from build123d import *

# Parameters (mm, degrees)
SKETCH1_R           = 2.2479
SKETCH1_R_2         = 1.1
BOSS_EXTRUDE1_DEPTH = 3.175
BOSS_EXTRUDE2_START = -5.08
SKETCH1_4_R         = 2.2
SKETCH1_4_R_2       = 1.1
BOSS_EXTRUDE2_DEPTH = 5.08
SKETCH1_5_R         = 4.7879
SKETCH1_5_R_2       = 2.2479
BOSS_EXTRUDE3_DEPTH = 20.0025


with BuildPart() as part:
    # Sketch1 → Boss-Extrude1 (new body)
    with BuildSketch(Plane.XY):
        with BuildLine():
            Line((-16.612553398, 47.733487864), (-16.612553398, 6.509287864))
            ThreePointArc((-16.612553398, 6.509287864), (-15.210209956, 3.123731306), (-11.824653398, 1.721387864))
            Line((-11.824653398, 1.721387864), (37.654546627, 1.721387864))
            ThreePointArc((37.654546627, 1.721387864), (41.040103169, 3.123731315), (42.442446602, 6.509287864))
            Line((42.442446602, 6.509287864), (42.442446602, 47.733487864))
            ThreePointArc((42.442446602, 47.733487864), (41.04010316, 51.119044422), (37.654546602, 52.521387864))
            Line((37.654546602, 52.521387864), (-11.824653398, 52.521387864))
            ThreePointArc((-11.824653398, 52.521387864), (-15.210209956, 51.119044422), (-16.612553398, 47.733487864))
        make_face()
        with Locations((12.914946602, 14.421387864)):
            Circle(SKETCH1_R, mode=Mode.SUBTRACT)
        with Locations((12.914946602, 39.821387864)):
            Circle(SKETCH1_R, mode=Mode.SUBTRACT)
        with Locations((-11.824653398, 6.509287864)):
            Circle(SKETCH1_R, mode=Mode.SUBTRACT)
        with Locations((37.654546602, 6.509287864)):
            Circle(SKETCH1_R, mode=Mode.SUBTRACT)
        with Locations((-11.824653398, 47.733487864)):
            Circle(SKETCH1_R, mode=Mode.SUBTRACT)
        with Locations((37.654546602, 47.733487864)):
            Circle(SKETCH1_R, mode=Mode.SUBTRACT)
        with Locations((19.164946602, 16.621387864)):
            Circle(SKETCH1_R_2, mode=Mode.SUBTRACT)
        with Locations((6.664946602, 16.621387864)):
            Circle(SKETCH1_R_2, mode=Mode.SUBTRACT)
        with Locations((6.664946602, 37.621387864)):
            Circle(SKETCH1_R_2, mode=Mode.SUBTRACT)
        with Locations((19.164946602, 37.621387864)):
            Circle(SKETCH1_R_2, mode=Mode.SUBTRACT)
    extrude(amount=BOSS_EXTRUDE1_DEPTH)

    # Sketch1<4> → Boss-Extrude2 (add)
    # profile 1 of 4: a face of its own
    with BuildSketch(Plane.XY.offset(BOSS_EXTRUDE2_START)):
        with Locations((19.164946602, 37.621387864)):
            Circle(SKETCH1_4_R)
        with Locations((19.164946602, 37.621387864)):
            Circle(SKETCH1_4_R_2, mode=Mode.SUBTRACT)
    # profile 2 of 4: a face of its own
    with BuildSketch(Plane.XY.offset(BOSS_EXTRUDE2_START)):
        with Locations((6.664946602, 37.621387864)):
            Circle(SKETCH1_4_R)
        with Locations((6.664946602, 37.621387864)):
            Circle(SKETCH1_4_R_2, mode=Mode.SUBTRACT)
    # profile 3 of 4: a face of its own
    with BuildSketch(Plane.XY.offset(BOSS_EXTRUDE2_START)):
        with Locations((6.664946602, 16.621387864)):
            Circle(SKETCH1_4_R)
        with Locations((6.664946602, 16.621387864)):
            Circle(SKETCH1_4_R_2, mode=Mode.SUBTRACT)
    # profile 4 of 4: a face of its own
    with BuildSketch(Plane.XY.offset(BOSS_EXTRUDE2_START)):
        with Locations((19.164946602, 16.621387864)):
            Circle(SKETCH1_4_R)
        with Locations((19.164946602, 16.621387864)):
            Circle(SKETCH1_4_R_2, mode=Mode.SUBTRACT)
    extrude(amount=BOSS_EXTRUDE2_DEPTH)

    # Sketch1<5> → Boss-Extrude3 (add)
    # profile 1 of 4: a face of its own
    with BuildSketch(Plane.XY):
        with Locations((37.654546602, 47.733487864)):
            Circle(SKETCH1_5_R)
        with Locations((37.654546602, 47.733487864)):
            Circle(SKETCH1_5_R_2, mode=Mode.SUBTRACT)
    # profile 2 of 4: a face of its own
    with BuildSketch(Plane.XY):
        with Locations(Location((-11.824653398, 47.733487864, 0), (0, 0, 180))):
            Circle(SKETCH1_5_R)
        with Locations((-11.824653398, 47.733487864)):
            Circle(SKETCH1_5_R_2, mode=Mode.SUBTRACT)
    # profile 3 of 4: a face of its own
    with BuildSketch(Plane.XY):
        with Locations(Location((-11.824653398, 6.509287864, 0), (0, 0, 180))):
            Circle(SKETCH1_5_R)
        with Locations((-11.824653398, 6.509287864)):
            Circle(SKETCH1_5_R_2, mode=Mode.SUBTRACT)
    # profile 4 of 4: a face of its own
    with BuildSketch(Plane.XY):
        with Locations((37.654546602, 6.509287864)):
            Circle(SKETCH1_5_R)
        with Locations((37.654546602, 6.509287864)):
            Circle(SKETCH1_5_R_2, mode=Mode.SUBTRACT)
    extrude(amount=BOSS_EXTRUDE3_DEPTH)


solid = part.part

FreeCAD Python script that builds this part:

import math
import FreeCAD as App
import Part
import Sketcher

V = App.Vector
Q = App.Units.Quantity

doc = App.newDocument("Part")
body = doc.addObject("PartDesign::Body", "Body")

# Sketch on XY plane
sketch1 = body.newObject("Sketcher::SketchObject", "Sketch")
sketch1.AttachmentSupport = (doc.getObject("XY_Plane"), [""])
sketch1.MapMode = "FlatFace"
sketch1.addGeometry(Part.LineSegment(V(-16.6, 47.7, 0), V(-16.6, 6.5, 0)), False)
sketch1.addGeometry(Part.ArcOfCircle(Part.Circle(V(-11.8, 6.5, 0), V(0, 0, 1), 4.8), math.radians(180), math.radians(270)), False)
sketch1.addGeometry(Part.LineSegment(V(-11.8, 1.7, 0), V(37.7, 1.7, 0)), False)
sketch1.addGeometry(Part.ArcOfCircle(Part.Circle(V(37.7, 6.5, 0), V(0, 0, 1), 4.8), math.radians(-90), math.radians(0)), False)
sketch1.addGeometry(Part.LineSegment(V(42.4, 6.5, 0), V(42.4, 47.7, 0)), False)
sketch1.addGeometry(Part.ArcOfCircle(Part.Circle(V(37.7, 47.7, 0), V(0, 0, 1), 4.8), math.radians(0), math.radians(90)), False)
sketch1.addGeometry(Part.LineSegment(V(37.7, 52.5, 0), V(-11.8, 52.5, 0)), False)
sketch1.addGeometry(Part.ArcOfCircle(Part.Circle(V(-11.8, 47.7, 0), V(0, 0, 1), 4.8), math.radians(90), math.radians(180)), False)
sketch1.addGeometry(Part.Circle(V(-11.8, 6.5, 0), V(0, 0, 1), 2.2), False)
sketch1.addGeometry(Part.Circle(V(6.7, 16.6, 0), V(0, 0, 1), 1.1), False)
sketch1.addGeometry(Part.Circle(V(12.9, 14.4, 0), V(0, 0, 1), 2.2), False)
sketch1.addGeometry(Part.Circle(V(37.7, 6.5, 0), V(0, 0, 1), 2.2), False)
sketch1.addGeometry(Part.Circle(V(19.2, 16.6, 0), V(0, 0, 1), 1.1), False)
sketch1.addGeometry(Part.Circle(V(6.7, 37.6, 0), V(0, 0, 1), 1.1), False)
sketch1.addGeometry(Part.Circle(V(-11.8, 47.7, 0), V(0, 0, 1), 2.2), False)
sketch1.addGeometry(Part.Circle(V(19.2, 37.6, 0), V(0, 0, 1), 1.1), False)
sketch1.addGeometry(Part.Circle(V(12.9, 39.8, 0), V(0, 0, 1), 2.2), False)
sketch1.addGeometry(Part.Circle(V(37.7, 47.7, 0), V(0, 0, 1), 2.2), False)
sketch1.addConstraint(Sketcher.Constraint("Tangent", 0, 2, 1, 1))
sketch1.addConstraint(Sketcher.Constraint("Tangent", 1, 2, 2, 1))
sketch1.addConstraint(Sketcher.Constraint("Tangent", 2, 2, 3, 1))
sketch1.addConstraint(Sketcher.Constraint("Tangent", 3, 2, 4, 1))
sketch1.addConstraint(Sketcher.Constraint("Tangent", 4, 2, 5, 1))
sketch1.addConstraint(Sketcher.Constraint("Tangent", 5, 2, 6, 1))
sketch1.addConstraint(Sketcher.Constraint("Tangent", 6, 2, 7, 1))
sketch1.addConstraint(Sketcher.Constraint("Tangent", 7, 2, 0, 1))
sketch1.addConstraint(Sketcher.Constraint("Vertical", 0))
sketch1.addConstraint(Sketcher.Constraint("Horizontal", 2))
sketch1.addConstraint(Sketcher.Constraint("Vertical", 4))
sketch1.addConstraint(Sketcher.Constraint("Horizontal", 6))
sketch1.addConstraint(Sketcher.Constraint("Coincident", 8, 3, 1, 3))
sketch1.addConstraint(Sketcher.Constraint("Coincident", 11, 3, 3, 3))
sketch1.addConstraint(Sketcher.Constraint("Coincident", 14, 3, 7, 3))
sketch1.addConstraint(Sketcher.Constraint("Coincident", 17, 3, 5, 3))
sketch1.addConstraint(Sketcher.Constraint("Equal", 1, 3))
sketch1.addConstraint(Sketcher.Constraint("Equal", 3, 5))
sketch1.addConstraint(Sketcher.Constraint("Equal", 5, 7))
sketch1.addConstraint(Sketcher.Constraint("Equal", 8, 10))
sketch1.addConstraint(Sketcher.Constraint("Equal", 10, 11))
sketch1.addConstraint(Sketcher.Constraint("Equal", 9, 12))
sketch1.addConstraint(Sketcher.Constraint("Equal", 12, 13))
sketch1.addConstraint(Sketcher.Constraint("Equal", 11, 14))
sketch1.addConstraint(Sketcher.Constraint("Equal", 13, 15))
sketch1.addConstraint(Sketcher.Constraint("Equal", 14, 16))
sketch1.addConstraint(Sketcher.Constraint("Equal", 16, 17))
sketch1.addConstraint(Sketcher.Constraint("Horizontal", 9, 3, 12, 3))
sketch1.addConstraint(Sketcher.Constraint("Horizontal", 13, 3, 15, 3))
sketch1.addConstraint(Sketcher.Constraint("Vertical", 9, 3, 13, 3))
sketch1.addConstraint(Sketcher.Constraint("Vertical", 12, 3, 15, 3))
sketch1.addConstraint(Sketcher.Constraint("Vertical", 10, 3, 16, 3))
sketch1.addConstraint(Sketcher.Constraint("Diameter", 8, Q("0.177 in")))
sketch1.addConstraint(Sketcher.Constraint("DistanceY", 10, 3, 16, 3, Q("1 in")))
sketch1.addConstraint(Sketcher.Constraint("Radius", 1, Q("0.1885 in")))
sketch1.addConstraint(Sketcher.Constraint("DistanceY", 1, 2, 10, 3, Q("0.5 in")))
sketch1.addConstraint(Sketcher.Constraint("DistanceY", 16, 3, 5, 2, Q("0.5 in")))
sketch1.addConstraint(Sketcher.Constraint("Diameter", 9, Q("2.2 mm")))
sketch1.addConstraint(Sketcher.Constraint("DistanceX", 2, 1, 2, 2, Q("1.948 in")))
sketch1.addConstraint(Sketcher.Constraint("DistanceX", 8, 3, 10, 3, Q("0.974 in")))
sketch1.addConstraint(Sketcher.Constraint("DistanceX", 8, 3, 9, 3, Q("18.4896 mm")))
sketch1.addConstraint(Sketcher.Constraint("DistanceY", 8, 3, 9, 3, Q("10.1121 mm")))
sketch1.addConstraint(Sketcher.Constraint("DistanceX", 10, 3, 12, 3, Q("6.25 mm")))
sketch1.addConstraint(Sketcher.Constraint("DistanceY", 9, 3, 13, 3, Q("21 mm")))
sketch1.addConstraint(Sketcher.Constraint("DistanceX", 1, 3, -1, 1, Q("11.824653 mm")))
sketch1.addConstraint(Sketcher.Constraint("DistanceY", -1, 1, 1, 3, Q("6.509288 mm")))
pad1 = body.newObject("PartDesign::Pad", "Pad")
pad1.Profile = sketch1
pad1.Length = Q("0.125 in")

# Sketch on XY plane
sketch2 = body.newObject("Sketcher::SketchObject", "Sketch001")
sketch2.AttachmentSupport = (doc.getObject("XY_Plane"), [""])
sketch2.MapMode = "FlatFace"
sketch2.AttachmentOffset = App.Placement(V(0, 0, -0.2 * 25.4), App.Rotation())
sketch2.addGeometry(Part.Circle(V(19.2, 37.6, 0), V(0, 0, 1), 2.2), False)
sketch2.addGeometry(Part.Circle(V(19.2, 37.6, 0), V(0, 0, 1), 1.1), False)
sketch2.addGeometry(Part.Circle(V(6.7, 37.6, 0), V(0, 0, 1), 2.2), False)
sketch2.addGeometry(Part.Circle(V(6.7, 37.6, 0), V(0, 0, 1), 1.1), False)
sketch2.addGeometry(Part.Circle(V(6.7, 16.6, 0), V(0, 0, 1), 2.2), False)
sketch2.addGeometry(Part.Circle(V(6.7, 16.6, 0), V(0, 0, 1), 1.1), False)
sketch2.addGeometry(Part.Circle(V(19.2, 16.6, 0), V(0, 0, 1), 2.2), False)
sketch2.addGeometry(Part.Circle(V(19.2, 16.6, 0), V(0, 0, 1), 1.1), False)
sketch2.addConstraint(Sketcher.Constraint("Coincident", 1, 3, 0, 3))
sketch2.addConstraint(Sketcher.Constraint("Coincident", 3, 3, 2, 3))
sketch2.addConstraint(Sketcher.Constraint("Coincident", 5, 3, 4, 3))
sketch2.addConstraint(Sketcher.Constraint("Coincident", 7, 3, 6, 3))
sketch2.addConstraint(Sketcher.Constraint("Equal", 0, 2))
sketch2.addConstraint(Sketcher.Constraint("Equal", 1, 3))
sketch2.addConstraint(Sketcher.Constraint("Equal", 2, 4))
sketch2.addConstraint(Sketcher.Constraint("Equal", 3, 5))
sketch2.addConstraint(Sketcher.Constraint("Equal", 4, 6))
sketch2.addConstraint(Sketcher.Constraint("Equal", 5, 7))
sketch2.addConstraint(Sketcher.Constraint("Horizontal", 1, 3, 2, 3))
sketch2.addConstraint(Sketcher.Constraint("Horizontal", 5, 3, 6, 3))
sketch2.addConstraint(Sketcher.Constraint("Vertical", 3, 3, 4, 3))
sketch2.addConstraint(Sketcher.Constraint("Vertical", 1, 3, 6, 3))
sketch2.addConstraint(Sketcher.Constraint("Diameter", 0, Q("4.4 mm")))
sketch2.addConstraint(Sketcher.Constraint("Diameter", 1, Q("2.2 mm")))
sketch2.addConstraint(Sketcher.Constraint("DistanceX", 2, 3, 0, 3, Q("12.5 mm")))
sketch2.addConstraint(Sketcher.Constraint("DistanceY", 4, 3, 2, 3, Q("21 mm")))
sketch2.addConstraint(Sketcher.Constraint("DistanceX", -1, 1, 0, 3, Q("19.164947 mm")))
sketch2.addConstraint(Sketcher.Constraint("DistanceY", -1, 1, 0, 3, Q("37.621388 mm")))
pad2 = body.newObject("PartDesign::Pad", "Pad001")
pad2.Profile = sketch2
pad2.Length = Q("0.2 in")

# Sketch on XY plane
sketch3 = body.newObject("Sketcher::SketchObject", "Sketch002")
sketch3.AttachmentSupport = (doc.getObject("XY_Plane"), [""])
sketch3.MapMode = "FlatFace"
sketch3.addGeometry(Part.Circle(V(37.7, 47.7, 0), V(0, 0, 1), 4.8), False)
sketch3.addGeometry(Part.Circle(V(37.7, 47.7, 0), V(0, 0, 1), 2.2), False)
sketch3.addGeometry(Part.Circle(V(-11.8, 47.7, 0), V(0, 0, 1), 4.8), False)
sketch3.addGeometry(Part.Circle(V(-11.8, 47.7, 0), V(0, 0, 1), 2.2), False)
sketch3.addGeometry(Part.Circle(V(-11.8, 6.5, 0), V(0, 0, 1), 4.8), False)
sketch3.addGeometry(Part.Circle(V(-11.8, 6.5, 0), V(0, 0, 1), 2.2), False)
sketch3.addGeometry(Part.Circle(V(37.7, 6.5, 0), V(0, 0, 1), 4.8), False)
sketch3.addGeometry(Part.Circle(V(37.7, 6.5, 0), V(0, 0, 1), 2.2), False)
sketch3.addConstraint(Sketcher.Constraint("Coincident", 1, 3, 0, 3))
sketch3.addConstraint(Sketcher.Constraint("Coincident", 3, 3, 2, 3))
sketch3.addConstraint(Sketcher.Constraint("Coincident", 5, 3, 4, 3))
sketch3.addConstraint(Sketcher.Constraint("Coincident", 7, 3, 6, 3))
sketch3.addConstraint(Sketcher.Constraint("Equal", 0, 2))
sketch3.addConstraint(Sketcher.Constraint("Equal", 1, 3))
sketch3.addConstraint(Sketcher.Constraint("Equal", 2, 4))
sketch3.addConstraint(Sketcher.Constraint("Equal", 3, 5))
sketch3.addConstraint(Sketcher.Constraint("Equal", 4, 6))
sketch3.addConstraint(Sketcher.Constraint("Equal", 5, 7))
sketch3.addConstraint(Sketcher.Constraint("Horizontal", 1, 3, 2, 3))
sketch3.addConstraint(Sketcher.Constraint("Horizontal", 5, 3, 6, 3))
sketch3.addConstraint(Sketcher.Constraint("Vertical", 3, 3, 4, 3))
sketch3.addConstraint(Sketcher.Constraint("Vertical", 1, 3, 6, 3))
sketch3.addConstraint(Sketcher.Constraint("Diameter", 0, Q("0.377 in")))
sketch3.addConstraint(Sketcher.Constraint("Diameter", 1, Q("0.177 in")))
sketch3.addConstraint(Sketcher.Constraint("DistanceX", 2, 3, 0, 3, Q("1.948 in")))
sketch3.addConstraint(Sketcher.Constraint("DistanceY", 4, 3, 2, 3, Q("1.623 in")))
sketch3.addConstraint(Sketcher.Constraint("DistanceX", -1, 1, 0, 3, Q("37.654547 mm")))
sketch3.addConstraint(Sketcher.Constraint("DistanceY", -1, 1, 0, 3, Q("47.733488 mm")))
pad3 = body.newObject("PartDesign::Pad", "Pad002")
pad3.Profile = sketch3
pad3.Length = Q("0.7875 in")

doc.recompute()
